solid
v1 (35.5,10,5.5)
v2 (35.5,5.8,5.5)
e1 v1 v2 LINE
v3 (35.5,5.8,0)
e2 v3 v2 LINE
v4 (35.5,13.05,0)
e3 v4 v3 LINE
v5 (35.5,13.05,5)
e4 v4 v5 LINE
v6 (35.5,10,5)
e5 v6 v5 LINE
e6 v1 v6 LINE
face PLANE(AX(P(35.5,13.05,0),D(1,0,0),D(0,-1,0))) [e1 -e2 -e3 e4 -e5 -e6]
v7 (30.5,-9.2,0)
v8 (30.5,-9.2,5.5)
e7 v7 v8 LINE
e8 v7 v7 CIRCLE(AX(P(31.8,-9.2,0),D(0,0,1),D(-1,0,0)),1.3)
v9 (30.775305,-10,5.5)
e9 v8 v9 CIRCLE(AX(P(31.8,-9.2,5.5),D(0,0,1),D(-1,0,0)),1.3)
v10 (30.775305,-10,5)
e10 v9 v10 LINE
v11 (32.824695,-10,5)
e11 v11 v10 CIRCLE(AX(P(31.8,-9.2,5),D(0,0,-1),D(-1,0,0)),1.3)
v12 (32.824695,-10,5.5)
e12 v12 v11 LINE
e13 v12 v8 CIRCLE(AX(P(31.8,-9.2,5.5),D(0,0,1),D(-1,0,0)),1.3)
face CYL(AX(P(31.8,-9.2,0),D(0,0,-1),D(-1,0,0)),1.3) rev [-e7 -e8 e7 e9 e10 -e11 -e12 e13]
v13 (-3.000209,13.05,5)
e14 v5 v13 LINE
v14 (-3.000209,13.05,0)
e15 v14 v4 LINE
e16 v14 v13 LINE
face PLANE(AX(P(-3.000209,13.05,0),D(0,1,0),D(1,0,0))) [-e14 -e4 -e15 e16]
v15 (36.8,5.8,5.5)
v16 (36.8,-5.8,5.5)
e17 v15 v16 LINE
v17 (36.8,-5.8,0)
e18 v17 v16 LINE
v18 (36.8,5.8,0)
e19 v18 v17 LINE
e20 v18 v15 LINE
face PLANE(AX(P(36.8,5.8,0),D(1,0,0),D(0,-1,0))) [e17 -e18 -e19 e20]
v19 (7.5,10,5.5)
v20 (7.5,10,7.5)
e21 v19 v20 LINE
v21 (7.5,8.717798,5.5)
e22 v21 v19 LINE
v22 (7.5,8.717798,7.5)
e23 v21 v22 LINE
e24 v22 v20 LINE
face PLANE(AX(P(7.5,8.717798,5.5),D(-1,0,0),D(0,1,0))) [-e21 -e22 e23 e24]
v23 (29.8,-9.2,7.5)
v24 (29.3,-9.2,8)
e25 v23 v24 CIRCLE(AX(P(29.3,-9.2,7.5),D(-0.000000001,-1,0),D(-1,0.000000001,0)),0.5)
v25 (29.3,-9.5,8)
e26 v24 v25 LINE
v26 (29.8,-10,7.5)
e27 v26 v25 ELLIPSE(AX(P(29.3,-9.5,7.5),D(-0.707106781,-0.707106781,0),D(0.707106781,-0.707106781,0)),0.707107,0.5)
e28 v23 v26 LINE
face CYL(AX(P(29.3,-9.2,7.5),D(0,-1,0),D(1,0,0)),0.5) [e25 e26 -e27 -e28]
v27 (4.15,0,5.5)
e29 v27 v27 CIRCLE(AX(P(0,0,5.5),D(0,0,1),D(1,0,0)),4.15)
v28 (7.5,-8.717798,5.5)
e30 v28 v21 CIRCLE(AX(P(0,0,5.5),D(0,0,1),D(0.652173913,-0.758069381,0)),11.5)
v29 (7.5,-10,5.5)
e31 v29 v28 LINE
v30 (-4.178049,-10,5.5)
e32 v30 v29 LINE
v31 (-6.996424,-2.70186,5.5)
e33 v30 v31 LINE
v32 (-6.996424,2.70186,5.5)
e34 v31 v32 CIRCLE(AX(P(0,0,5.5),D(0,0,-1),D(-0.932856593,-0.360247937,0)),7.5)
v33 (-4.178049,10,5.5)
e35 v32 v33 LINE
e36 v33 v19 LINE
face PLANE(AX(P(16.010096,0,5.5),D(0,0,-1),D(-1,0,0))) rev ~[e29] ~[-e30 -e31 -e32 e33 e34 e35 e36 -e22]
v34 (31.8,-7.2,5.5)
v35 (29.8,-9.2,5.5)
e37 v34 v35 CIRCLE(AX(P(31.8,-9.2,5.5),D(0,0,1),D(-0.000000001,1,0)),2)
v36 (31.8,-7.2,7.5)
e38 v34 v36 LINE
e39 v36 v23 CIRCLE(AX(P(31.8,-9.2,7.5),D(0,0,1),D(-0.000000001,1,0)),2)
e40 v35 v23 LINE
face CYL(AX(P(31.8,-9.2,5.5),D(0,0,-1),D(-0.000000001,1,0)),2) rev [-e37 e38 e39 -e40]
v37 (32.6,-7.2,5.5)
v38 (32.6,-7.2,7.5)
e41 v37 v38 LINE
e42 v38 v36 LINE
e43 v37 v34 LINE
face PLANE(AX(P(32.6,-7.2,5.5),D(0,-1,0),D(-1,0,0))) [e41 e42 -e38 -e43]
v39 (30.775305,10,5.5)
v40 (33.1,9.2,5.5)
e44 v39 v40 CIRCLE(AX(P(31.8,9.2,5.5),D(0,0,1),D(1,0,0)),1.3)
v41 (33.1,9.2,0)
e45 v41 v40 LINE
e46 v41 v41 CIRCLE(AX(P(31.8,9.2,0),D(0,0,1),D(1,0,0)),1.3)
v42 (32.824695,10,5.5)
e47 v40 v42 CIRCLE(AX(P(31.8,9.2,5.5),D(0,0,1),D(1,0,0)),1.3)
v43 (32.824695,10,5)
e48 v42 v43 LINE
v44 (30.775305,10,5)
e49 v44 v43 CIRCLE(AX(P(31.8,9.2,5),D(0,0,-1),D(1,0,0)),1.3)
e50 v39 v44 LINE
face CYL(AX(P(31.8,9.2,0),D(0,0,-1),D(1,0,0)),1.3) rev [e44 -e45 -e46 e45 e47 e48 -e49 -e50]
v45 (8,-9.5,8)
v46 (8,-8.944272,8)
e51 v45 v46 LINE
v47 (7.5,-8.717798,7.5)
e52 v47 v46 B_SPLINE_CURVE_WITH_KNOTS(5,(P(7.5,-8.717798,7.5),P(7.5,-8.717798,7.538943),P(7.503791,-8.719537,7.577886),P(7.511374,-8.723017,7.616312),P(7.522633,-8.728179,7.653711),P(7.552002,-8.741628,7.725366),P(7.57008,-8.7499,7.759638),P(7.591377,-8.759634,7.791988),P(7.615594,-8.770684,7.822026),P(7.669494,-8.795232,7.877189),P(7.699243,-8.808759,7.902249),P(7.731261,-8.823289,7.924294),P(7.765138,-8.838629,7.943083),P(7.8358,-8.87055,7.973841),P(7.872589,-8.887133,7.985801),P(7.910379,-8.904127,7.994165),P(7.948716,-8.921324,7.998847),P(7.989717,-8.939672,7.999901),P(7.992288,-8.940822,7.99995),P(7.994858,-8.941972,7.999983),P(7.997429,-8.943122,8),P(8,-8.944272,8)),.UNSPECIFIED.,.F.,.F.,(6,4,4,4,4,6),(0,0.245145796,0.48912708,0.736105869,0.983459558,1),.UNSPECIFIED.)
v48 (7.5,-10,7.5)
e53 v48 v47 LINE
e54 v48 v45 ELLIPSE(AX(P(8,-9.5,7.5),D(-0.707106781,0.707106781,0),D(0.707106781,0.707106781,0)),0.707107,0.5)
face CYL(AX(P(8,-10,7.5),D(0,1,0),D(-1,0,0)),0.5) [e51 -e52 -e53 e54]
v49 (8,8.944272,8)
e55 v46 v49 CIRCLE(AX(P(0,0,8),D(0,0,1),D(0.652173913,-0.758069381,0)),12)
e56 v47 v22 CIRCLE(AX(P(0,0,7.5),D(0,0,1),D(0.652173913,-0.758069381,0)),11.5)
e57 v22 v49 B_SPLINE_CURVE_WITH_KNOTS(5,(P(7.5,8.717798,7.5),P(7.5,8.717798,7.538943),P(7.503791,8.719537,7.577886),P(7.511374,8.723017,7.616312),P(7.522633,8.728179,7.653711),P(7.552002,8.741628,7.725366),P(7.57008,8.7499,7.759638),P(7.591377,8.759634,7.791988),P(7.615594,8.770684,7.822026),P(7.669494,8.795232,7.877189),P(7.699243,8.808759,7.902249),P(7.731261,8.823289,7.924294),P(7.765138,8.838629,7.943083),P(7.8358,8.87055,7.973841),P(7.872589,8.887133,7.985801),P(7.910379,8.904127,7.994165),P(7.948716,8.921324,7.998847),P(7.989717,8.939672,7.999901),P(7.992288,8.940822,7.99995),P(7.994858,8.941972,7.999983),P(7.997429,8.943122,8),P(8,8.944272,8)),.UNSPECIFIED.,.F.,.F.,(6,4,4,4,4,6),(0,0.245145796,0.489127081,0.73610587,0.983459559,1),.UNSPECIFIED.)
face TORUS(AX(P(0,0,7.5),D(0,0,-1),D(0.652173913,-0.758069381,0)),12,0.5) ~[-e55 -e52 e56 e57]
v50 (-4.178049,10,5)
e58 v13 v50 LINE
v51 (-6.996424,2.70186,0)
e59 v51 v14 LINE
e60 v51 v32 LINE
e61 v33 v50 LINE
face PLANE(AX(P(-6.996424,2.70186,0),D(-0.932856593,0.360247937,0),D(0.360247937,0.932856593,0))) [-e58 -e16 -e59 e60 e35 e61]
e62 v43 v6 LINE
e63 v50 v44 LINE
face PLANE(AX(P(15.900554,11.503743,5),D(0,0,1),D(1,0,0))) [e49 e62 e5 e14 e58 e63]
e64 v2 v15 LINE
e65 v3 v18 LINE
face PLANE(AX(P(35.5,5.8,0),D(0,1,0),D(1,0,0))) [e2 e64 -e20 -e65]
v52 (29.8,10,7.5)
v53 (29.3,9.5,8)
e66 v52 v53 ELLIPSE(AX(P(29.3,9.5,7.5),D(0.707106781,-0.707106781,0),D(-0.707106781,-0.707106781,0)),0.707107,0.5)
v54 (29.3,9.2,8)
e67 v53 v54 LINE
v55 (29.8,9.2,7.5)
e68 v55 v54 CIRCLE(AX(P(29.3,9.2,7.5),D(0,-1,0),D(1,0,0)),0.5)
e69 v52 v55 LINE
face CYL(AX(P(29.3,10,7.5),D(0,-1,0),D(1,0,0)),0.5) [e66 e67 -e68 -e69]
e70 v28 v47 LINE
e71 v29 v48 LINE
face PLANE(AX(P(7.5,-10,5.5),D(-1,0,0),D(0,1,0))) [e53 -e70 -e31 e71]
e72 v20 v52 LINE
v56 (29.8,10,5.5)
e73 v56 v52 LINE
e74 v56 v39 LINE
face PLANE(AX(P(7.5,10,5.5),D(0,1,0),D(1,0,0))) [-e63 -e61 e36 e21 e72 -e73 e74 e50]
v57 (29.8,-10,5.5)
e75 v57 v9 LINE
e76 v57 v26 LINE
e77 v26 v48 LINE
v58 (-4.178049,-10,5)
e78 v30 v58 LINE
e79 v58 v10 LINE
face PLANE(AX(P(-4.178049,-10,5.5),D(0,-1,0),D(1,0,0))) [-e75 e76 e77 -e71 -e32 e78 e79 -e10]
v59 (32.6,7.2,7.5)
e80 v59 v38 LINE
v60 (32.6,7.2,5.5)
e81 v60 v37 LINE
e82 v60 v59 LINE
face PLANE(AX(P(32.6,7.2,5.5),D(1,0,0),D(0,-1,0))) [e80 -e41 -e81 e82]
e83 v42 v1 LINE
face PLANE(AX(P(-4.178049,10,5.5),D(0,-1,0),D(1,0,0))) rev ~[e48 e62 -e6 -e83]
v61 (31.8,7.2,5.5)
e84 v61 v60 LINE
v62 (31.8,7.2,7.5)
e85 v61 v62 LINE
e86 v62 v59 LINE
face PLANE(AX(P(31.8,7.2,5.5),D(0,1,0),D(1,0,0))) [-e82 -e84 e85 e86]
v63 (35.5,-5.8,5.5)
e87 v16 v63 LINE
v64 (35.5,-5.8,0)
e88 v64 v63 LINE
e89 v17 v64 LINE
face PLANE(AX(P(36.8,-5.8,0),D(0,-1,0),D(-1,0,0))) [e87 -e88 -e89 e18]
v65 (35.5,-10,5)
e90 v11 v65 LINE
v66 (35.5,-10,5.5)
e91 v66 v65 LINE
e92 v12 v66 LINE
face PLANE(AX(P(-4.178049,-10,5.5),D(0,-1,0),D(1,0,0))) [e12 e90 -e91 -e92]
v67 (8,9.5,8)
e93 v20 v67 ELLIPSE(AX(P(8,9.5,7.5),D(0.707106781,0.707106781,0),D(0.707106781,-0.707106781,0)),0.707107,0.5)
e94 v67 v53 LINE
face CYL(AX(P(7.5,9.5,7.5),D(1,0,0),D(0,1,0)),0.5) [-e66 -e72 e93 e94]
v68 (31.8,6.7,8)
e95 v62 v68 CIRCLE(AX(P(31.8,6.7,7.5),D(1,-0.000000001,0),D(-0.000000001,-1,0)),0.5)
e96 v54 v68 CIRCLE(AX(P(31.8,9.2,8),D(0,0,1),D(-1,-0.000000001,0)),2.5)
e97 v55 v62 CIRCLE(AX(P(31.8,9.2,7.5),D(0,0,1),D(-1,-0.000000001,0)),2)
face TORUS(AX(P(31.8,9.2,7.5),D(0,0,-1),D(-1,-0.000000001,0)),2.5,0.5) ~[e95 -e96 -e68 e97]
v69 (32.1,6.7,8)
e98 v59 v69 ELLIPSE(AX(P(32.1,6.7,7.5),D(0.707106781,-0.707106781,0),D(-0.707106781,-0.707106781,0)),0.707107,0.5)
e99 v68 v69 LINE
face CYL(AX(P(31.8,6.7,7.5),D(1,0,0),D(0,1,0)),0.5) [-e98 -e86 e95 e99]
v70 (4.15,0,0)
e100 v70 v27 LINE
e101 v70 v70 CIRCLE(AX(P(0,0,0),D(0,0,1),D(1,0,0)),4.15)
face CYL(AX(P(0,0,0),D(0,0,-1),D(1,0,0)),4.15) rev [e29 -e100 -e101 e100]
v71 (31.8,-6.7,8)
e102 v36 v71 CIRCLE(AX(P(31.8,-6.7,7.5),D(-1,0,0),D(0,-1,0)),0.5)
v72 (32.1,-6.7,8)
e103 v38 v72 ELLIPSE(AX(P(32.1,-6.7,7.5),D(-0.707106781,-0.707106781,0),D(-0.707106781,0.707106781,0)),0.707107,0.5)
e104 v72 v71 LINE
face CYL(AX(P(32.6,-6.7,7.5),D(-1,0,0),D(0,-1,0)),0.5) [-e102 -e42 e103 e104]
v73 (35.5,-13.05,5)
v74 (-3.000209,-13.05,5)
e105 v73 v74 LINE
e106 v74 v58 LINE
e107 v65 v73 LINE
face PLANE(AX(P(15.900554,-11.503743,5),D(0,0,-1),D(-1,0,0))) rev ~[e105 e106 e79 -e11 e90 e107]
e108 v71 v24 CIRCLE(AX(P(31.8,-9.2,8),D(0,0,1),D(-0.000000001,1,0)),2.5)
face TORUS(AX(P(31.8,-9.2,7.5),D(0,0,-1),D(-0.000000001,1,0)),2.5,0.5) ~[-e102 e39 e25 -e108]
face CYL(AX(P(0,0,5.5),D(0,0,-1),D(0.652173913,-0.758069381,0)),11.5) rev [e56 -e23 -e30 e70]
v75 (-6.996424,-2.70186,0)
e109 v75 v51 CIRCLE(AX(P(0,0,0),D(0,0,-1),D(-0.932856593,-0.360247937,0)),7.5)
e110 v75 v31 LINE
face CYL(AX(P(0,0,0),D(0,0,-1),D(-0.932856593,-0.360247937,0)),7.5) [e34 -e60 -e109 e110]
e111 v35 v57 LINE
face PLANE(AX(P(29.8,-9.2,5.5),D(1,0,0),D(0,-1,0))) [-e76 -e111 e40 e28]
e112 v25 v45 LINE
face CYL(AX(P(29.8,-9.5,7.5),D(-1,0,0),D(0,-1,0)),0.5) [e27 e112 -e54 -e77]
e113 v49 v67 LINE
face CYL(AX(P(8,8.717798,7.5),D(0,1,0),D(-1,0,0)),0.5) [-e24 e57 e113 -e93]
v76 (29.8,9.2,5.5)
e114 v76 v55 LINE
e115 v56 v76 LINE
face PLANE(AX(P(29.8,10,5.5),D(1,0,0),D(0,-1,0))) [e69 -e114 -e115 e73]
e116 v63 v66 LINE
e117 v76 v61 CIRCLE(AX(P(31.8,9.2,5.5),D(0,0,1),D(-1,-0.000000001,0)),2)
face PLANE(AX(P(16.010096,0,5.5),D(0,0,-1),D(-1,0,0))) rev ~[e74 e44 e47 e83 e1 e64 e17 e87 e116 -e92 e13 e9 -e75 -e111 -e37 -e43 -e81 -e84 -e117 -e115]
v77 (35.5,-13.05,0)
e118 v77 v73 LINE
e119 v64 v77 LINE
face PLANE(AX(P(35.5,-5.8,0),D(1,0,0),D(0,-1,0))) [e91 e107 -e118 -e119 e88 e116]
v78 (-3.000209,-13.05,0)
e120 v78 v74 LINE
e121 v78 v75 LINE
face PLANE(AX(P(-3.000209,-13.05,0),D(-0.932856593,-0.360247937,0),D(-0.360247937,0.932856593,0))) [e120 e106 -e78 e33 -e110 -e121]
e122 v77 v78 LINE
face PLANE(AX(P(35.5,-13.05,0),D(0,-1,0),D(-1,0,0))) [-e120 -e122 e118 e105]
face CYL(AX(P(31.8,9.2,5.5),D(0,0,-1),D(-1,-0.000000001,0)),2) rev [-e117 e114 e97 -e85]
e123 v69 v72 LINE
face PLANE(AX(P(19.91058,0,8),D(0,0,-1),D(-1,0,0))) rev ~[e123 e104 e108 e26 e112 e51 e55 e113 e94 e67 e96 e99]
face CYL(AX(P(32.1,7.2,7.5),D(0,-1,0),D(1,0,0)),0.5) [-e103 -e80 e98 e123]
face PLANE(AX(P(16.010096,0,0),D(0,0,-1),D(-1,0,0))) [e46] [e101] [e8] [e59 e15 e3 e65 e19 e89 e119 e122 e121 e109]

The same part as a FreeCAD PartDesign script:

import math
import FreeCAD as App
import Part
import Sketcher


def edges_at(feature, points):
    """Names of the edges that pass closest to the given points."""
    edges = feature.Shape.Edges
    near = lambda p: min(range(len(edges)), key=lambda i: edges[i].distToShape(Part.Vertex(*p))[0])
    return sorted({f"Edge{near(p) + 1}" for p in points})

doc = App.newDocument("Part")
params = doc.addObject("Spreadsheet::Sheet", "Params")
for row, (alias, value) in enumerate([
    ("sketch1_diameter", "2.6 mm"),
    ("sketch1_diameter2", "8.3 mm"),
    ("sketch1_radius", "7.5 mm"),
    ("sketch1_width", "1.3 mm"),
    ("sketch1_height", "11.6 mm"),
    ("pad1_length", "5.5 mm"),
    ("sketch2_radius", "2 mm"),
    ("sketch2_radius2", "11.5 mm"),
    ("sketch2_width", "22.3 mm"),
    ("sketch2_width2", "0.8 mm"),
    ("sketch2_height", "14.4 mm"),
    ("pad2_length", "2.5 mm"),
    ("fillet_radius", "0.5 mm"),
    ("sketch3_height", "3.05 mm"),
    ("pocket1_length", "0.5 mm"),
], start=1):
    params.set(f"A{row}", alias)
    params.set(f"B{row}", "=" + value)
    params.setAlias(f"B{row}", alias)

body = doc.addObject("PartDesign::Body", "Body")

sketch1 = body.newObject("Sketcher::SketchObject", "Sketch")
sketch1.AttachmentSupport = (doc.getObject("XY_Plane"), [""])
sketch1.MapMode = "FlatFace"
sketch1.addGeometry([
    Part.LineSegment(App.Vector(36.8, 5.8, 0), App.Vector(35.5, 5.8, 0)),
    Part.LineSegment(App.Vector(35.5, 5.8, 0), App.Vector(35.5, 13.1, 0)),
    Part.LineSegment(App.Vector(35.5, 13.1, 0), App.Vector(-3, 13.1, 0)),
    Part.LineSegment(App.Vector(-3, 13.1, 0), App.Vector(-7, 2.7, 0)),
    Part.ArcOfCircle(Part.Circle(App.Vector(0, 0, 0), App.Vector(0, 0, 1), 7.5), math.radians(159), math.radians(201)),
    Part.LineSegment(App.Vector(-7, -2.7, 0), App.Vector(-3, -13.1, 0)),
    Part.LineSegment(App.Vector(-3, -13.1, 0), App.Vector(35.5, -13.1, 0)),
    Part.LineSegment(App.Vector(35.5, -13.1, 0), App.Vector(35.5, -5.8, 0)),
    Part.LineSegment(App.Vector(35.5, -5.8, 0), App.Vector(36.8, -5.8, 0)),
    Part.LineSegment(App.Vector(36.8, -5.8, 0), App.Vector(36.8, 5.8, 0)),
    Part.Circle(App.Vector(31.8, -9.2, 0), App.Vector(0, 0, 1), 1.3),
    Part.Circle(App.Vector(31.8, 9.2, 0), App.Vector(0, 0, 1), 1.3),
    Part.Circle(App.Vector(0, 0, 0), App.Vector(0, 0, 1), 4.2),
], False)
sketch1.addConstraint([
    Sketcher.Constraint("Coincident", 0, 2, 1, 1),
    Sketcher.Constraint("Coincident", 1, 2, 2, 1),
    Sketcher.Constraint("Coincident", 2, 2, 3, 1),
    Sketcher.Constraint("Tangent", 3, 2, 4, 1),
    Sketcher.Constraint("Tangent", 4, 2, 5, 1),
    Sketcher.Constraint("Coincident", 5, 2, 6, 1),
    Sketcher.Constraint("Coincident", 6, 2, 7, 1),
    Sketcher.Constraint("Coincident", 7, 2, 8, 1),
    Sketcher.Constraint("Coincident", 8, 2, 9, 1),
    Sketcher.Constraint("Coincident", 9, 2, 0, 1),
    Sketcher.Constraint("Horizontal", 0),
    Sketcher.Constraint("Vertical", 1),
    Sketcher.Constraint("Horizontal", 2),
    Sketcher.Constraint("Horizontal", 6),
    Sketcher.Constraint("Vertical", 7),
    Sketcher.Constraint("Horizontal", 8),
    Sketcher.Constraint("Vertical", 9),
    Sketcher.Constraint("Coincident", 4, 3, -1, 1),
    Sketcher.Constraint("Coincident", 12, 3, -1, 1),
    Sketcher.Constraint("Equal", 10, 11),
    Sketcher.Constraint("Symmetric", 10, 3, 11, 3, -1),
    Sketcher.Constraint("Symmetric", 2, 2, 5, 2, -1),
    Sketcher.Constraint("Symmetric", 0, 2, 7, 2, -1),
    Sketcher.Constraint("Diameter", 10, 2.6),
    Sketcher.Constraint("Diameter", 12, 8.3),
    Sketcher.Constraint("Radius", 4, 7.5),
    Sketcher.Constraint("DistanceX", 0, 2, 0, 1, 1.3),
    Sketcher.Constraint("DistanceY", 9, 1, 9, 2, 11.6),
    Sketcher.Constraint("DistanceY", 10, 3, 0, 2, 15.0),
    Sketcher.Constraint("DistanceX", 10, 3, 8, 2, 5.0),
    Sketcher.Constraint("DistanceY", 1, 1, 1, 2, 7.25),
    Sketcher.Constraint("DistanceX", -1, 1, 10, 3, 31.8),
    Sketcher.Constraint("DistanceX", 2, 2, 2, 1, 38.500209),
])
sketch1.setExpression("Constraints[23]", "Params.sketch1_diameter")
sketch1.setExpression("Constraints[24]", "Params.sketch1_diameter2")
sketch1.setExpression("Constraints[25]", "Params.sketch1_radius")
sketch1.setExpression("Constraints[26]", "Params.sketch1_width")
sketch1.setExpression("Constraints[27]", "Params.sketch1_height")
pad1 = body.newObject("PartDesign::Pad", "Pad")
pad1.Profile = sketch1
pad1.setExpression("Length", "Params.pad1_length")

sketch2 = body.newObject("Sketcher::SketchObject", "Sketch001")
sketch2.AttachmentSupport = (doc.getObject("XY_Plane"), [""])
sketch2.MapMode = "FlatFace"
sketch2.AttachmentOffset = App.Placement(App.Vector(0, 0, 5.5), App.Rotation())
sketch2.addGeometry([
    Part.LineSegment(App.Vector(29.8, 10, 0), App.Vector(7.5, 10, 0)),
    Part.LineSegment(App.Vector(7.5, 10, 0), App.Vector(7.5, 8.7, 0)),
    Part.ArcOfCircle(Part.Circle(App.Vector(0, 0, 0), App.Vector(0, 0, 1), 11.5), math.radians(-49), math.radians(49)),
    Part.LineSegment(App.Vector(7.5, -8.7, 0), App.Vector(7.5, -10, 0)),
    Part.LineSegment(App.Vector(7.5, -10, 0), App.Vector(29.8, -10, 0)),
    Part.LineSegment(App.Vector(29.8, -10, 0), App.Vector(29.8, -9.2, 0)),
    Part.ArcOfCircle(Part.Circle(App.Vector(31.8, -9.2, 0), App.Vector(0, 0, 1), 2), math.radians(90), math.radians(180)),
    Part.LineSegment(App.Vector(31.8, -7.2, 0), App.Vector(32.6, -7.2, 0)),
    Part.LineSegment(App.Vector(32.6, -7.2, 0), App.Vector(32.6, 7.2, 0)),
    Part.LineSegment(App.Vector(32.6, 7.2, 0), App.Vector(31.8, 7.2, 0)),
    Part.ArcOfCircle(Part.Circle(App.Vector(31.8, 9.2, 0), App.Vector(0, 0, 1), 2), math.radians(-180), math.radians(-90)),
    Part.LineSegment(App.Vector(29.8, 9.2, 0), App.Vector(29.8, 10, 0)),
], False)
sketch2.addConstraint([
    Sketcher.Constraint("Coincident", 0, 2, 1, 1),
    Sketcher.Constraint("Coincident", 1, 2, 2, 2),
    Sketcher.Constraint("Coincident", 2, 1, 3, 1),
    Sketcher.Constraint("Coincident", 3, 2, 4, 1),
    Sketcher.Constraint("Coincident", 4, 2, 5, 1),
    Sketcher.Constraint("Tangent", 5, 2, 6, 2),
    Sketcher.Constraint("Tangent", 6, 1, 7, 1),
    Sketcher.Constraint("Coincident", 7, 2, 8, 1),
    Sketcher.Constraint("Coincident", 8, 2, 9, 1),
    Sketcher.Constraint("Tangent", 9, 2, 10, 2),
    Sketcher.Constraint("Tangent", 10, 1, 11, 1),
    Sketcher.Constraint("Coincident", 11, 2, 0, 1),
    Sketcher.Constraint("Horizontal", 0),
    Sketcher.Constraint("Vertical", 1),
    Sketcher.Constraint("Vertical", 3),
    Sketcher.Constraint("Horizontal", 4),
    Sketcher.Constraint("Vertical", 5),
    Sketcher.Constraint("Horizontal", 7),
    Sketcher.Constraint("Vertical", 8),
    Sketcher.Constraint("Horizontal", 9),
    Sketcher.Constraint("Vertical", 11),
    Sketcher.Constraint("Coincident", 2, 3, -1, 1),
    Sketcher.Constraint("Equal", 6, 10),
    Sketcher.Constraint("Symmetric", 6, 3, 10, 3, -1),
    Sketcher.Constraint("Symmetric", 0, 2, 3, 2, -1),
    Sketcher.Constraint("Equal", 9, 5),
    Sketcher.Constraint("Radius", 6, 2.0),
    Sketcher.Constraint("Radius", 2, 11.5),
    Sketcher.Constraint("DistanceX", 0, 2, 0, 1, 22.3),
    Sketcher.Constraint("DistanceX", 7, 1, 7, 2, 0.8),
    Sketcher.Constraint("DistanceY", 8, 1, 8, 2, 14.4),
    Sketcher.Constraint("DistanceX", -1, 1, 6, 3, 31.8),
])
sketch2.setExpression("Constraints[26]", "Params.sketch2_radius")
sketch2.setExpression("Constraints[27]", "Params.sketch2_radius2")
sketch2.setExpression("Constraints[28]", "Params.sketch2_width")
sketch2.setExpression("Constraints[29]", "Params.sketch2_width2")
sketch2.setExpression("Constraints[30]", "Params.sketch2_height")
pad2 = body.newObject("PartDesign::Pad", "Pad001")
pad2.Profile = sketch2
pad2.setExpression("Length", "Params.pad2_length")
doc.recompute()

fillet = body.newObject("PartDesign::Fillet", "Fillet")
fillet.Base = (pad2, edges_at(pad2, [
    (30.386, -7.786, 8),
    (32.2, -7.2, 8),
    (32.6, 0, 8),
    (32.2, 7.2, 8),
    (30.386, 7.786, 8),
    (29.8, 9.6, 8),
    (18.65, 10, 8),
    (7.5, 9.359, 8),
    (11.5, 0, 8),
    (7.5, -9.359, 8),
    (18.65, -10, 8),
    (29.8, -9.6, 8),
]))
fillet.setExpression("Radius", "Params.fillet_radius")

sketch3 = body.newObject("Sketcher::SketchObject", "Sketch002")
sketch3.AttachmentSupport = (doc.getObject("XY_Plane"), [""])
sketch3.MapMode = "FlatFace"
sketch3.AttachmentOffset = App.Placement(App.Vector(0, 0, 5.5), App.Rotation())
sketch3.addGeometry([
    Part.LineSegment(App.Vector(35.5, -10, 0), App.Vector(-4.2, -10, 0)),
    Part.LineSegment(App.Vector(-4.2, -10, 0), App.Vector(-3, -13.1, 0)),
    Part.LineSegment(App.Vector(-3, -13.1, 0), App.Vector(35.5, -13.1, 0)),
    Part.LineSegment(App.Vector(35.5, -13.1, 0), App.Vector(35.5, -10, 0)),
    Part.LineSegment(App.Vector(-4.2, 10, 0), App.Vector(35.5, 10, 0)),
    Part.LineSegment(App.Vector(35.5, 10, 0), App.Vector(35.5, 13.1, 0)),
    Part.LineSegment(App.Vector(35.5, 13.1, 0), App.Vector(-3, 13.1, 0)),
    Part.LineSegment(App.Vector(-3, 13.1, 0), App.Vector(-4.2, 10, 0)),
], False)
sketch3.addConstraint([
    Sketcher.Constraint("Coincident", 0, 2, 1, 1),
    Sketcher.Constraint("Coincident", 1, 2, 2, 1),
    Sketcher.Constraint("Coincident", 2, 2, 3, 1),
    Sketcher.Constraint("Coincident", 3, 2, 0, 1),
    Sketcher.Constraint("Coincident", 4, 2, 5, 1),
    Sketcher.Constraint("Coincident", 5, 2, 6, 1),
    Sketcher.Constraint("Coincident", 6, 2, 7, 1),
    Sketcher.Constraint("Coincident", 7, 2, 4, 1),
    Sketcher.Constraint("Horizontal", 0),
    Sketcher.Constraint("Horizontal", 2),
    Sketcher.Constraint("Vertical", 3),
    Sketcher.Constraint("Horizontal", 4),
    Sketcher.Constraint("Vertical", 5),
    Sketcher.Constraint("Horizontal", 6),
    Sketcher.Constraint("Symmetric", 3, 2, 4, 2, -1),
    Sketcher.Constraint("Symmetric", 1, 2, 6, 2, -1),
    Sketcher.Constraint("Vertical", 0, 2, 7, 2),
    Sketcher.Constraint("DistanceY", 0, 2, -1, 1, 10.0),
    Sketcher.Constraint("DistanceY", 3, 1, 3, 2, 3.05),
    Sketcher.Constraint("DistanceX", -1, 1, 2, 2, 35.5),
    Sketcher.Constraint("DistanceX", 0, 2, 0, 1, 39.678049),
    Sketcher.Constraint("DistanceX", 2, 1, 2, 2, 38.500209),
])
sketch3.setExpression("Constraints[18]", "Params.sketch3_height")
pocket1 = body.newObject("PartDesign::Pocket", "Pocket")
pocket1.Profile = sketch3
pocket1.setExpression("Length", "Params.pocket1_length")

doc.recompute()
